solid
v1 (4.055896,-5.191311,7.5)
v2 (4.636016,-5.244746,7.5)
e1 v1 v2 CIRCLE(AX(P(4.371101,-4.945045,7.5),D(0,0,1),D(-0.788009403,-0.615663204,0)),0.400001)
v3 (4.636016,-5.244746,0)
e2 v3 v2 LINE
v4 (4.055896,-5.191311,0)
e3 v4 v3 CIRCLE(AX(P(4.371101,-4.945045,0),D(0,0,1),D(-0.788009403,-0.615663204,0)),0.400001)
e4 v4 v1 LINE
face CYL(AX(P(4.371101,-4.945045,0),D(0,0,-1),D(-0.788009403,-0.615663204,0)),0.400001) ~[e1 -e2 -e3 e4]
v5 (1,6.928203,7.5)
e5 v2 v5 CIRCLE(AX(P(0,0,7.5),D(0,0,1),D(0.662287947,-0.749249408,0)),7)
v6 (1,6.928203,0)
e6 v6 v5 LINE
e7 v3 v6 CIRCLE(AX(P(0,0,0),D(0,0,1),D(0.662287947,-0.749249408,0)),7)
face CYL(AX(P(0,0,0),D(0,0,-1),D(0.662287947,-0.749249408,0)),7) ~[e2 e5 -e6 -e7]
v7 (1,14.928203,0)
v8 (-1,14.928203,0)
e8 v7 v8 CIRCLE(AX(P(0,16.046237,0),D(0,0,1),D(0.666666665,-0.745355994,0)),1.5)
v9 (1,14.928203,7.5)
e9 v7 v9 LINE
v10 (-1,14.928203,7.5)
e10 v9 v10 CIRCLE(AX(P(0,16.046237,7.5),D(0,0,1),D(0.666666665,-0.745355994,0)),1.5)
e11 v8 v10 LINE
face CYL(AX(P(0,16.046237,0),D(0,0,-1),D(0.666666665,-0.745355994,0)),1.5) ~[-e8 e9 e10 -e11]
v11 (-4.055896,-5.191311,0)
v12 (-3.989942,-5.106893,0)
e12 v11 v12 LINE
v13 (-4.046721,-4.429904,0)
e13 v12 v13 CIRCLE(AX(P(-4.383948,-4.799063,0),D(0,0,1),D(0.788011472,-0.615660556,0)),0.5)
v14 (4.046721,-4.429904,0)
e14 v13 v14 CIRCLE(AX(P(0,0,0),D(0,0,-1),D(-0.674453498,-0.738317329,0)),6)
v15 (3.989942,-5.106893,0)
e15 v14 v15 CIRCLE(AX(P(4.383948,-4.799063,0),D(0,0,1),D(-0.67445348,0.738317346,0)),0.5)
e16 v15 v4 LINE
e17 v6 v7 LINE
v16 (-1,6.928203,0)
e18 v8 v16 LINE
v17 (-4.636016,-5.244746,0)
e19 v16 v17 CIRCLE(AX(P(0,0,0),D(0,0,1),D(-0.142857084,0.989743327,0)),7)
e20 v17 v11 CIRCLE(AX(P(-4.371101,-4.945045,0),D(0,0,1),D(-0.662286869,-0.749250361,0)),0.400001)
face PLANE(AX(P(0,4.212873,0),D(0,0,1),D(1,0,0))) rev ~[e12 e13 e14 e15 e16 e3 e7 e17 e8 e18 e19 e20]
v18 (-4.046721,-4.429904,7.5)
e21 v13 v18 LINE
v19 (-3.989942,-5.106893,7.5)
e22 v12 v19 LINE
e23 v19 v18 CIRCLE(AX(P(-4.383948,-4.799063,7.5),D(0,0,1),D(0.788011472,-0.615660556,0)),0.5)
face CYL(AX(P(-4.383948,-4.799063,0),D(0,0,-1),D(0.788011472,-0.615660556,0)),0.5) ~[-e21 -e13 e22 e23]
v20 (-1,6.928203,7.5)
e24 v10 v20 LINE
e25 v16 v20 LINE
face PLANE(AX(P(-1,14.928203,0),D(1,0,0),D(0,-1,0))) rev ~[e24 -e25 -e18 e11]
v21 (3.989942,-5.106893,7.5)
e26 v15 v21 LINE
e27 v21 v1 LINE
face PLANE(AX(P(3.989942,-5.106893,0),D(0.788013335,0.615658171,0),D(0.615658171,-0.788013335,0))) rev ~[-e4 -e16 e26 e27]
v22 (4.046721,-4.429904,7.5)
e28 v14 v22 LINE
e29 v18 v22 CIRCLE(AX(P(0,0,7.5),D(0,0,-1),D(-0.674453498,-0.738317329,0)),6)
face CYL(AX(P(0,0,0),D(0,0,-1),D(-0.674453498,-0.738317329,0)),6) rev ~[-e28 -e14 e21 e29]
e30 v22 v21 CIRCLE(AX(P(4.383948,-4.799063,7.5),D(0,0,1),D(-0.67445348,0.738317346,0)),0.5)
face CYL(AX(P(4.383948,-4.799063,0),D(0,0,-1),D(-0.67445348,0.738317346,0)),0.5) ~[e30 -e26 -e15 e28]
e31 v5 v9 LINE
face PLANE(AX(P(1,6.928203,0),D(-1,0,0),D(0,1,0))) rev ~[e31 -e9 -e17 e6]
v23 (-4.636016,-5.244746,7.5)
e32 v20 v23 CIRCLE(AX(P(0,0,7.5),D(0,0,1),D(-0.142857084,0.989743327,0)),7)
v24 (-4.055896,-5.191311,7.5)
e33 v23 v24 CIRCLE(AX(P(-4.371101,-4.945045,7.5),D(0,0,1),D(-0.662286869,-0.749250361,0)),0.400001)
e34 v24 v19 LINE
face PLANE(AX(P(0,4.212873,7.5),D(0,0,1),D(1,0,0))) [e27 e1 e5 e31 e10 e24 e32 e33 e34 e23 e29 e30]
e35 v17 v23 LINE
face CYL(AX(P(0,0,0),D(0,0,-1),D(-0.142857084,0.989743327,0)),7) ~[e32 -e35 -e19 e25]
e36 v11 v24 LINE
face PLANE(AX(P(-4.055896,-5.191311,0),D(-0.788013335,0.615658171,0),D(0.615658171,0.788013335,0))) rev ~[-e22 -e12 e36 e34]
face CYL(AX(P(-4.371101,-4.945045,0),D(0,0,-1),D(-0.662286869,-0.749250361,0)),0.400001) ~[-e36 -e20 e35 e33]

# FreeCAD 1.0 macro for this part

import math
import FreeCAD as App
import Part
import Sketcher

doc = App.newDocument("Part")
body = doc.addObject("PartDesign::Body", "Body")

# Sketch on XY plane
sketch1 = body.newObject("Sketcher::SketchObject", "Sketch")
sketch1.AttachmentSupport = (doc.getObject("XY_Plane"), [""])
sketch1.MapMode = "FlatFace"
sketch1.addGeometry([
    Part.ArcOfCircle(Part.Circle(App.Vector(4.37, -4.95, 0), App.Vector(0, 0, 1), 0.4), math.radians(-142), math.radians(-49)),  # 0
    Part.ArcOfCircle(Part.Circle(App.Vector(0, 0, 0), App.Vector(0, 0, 1), 7), math.radians(-49), math.radians(82)),  # 1
    Part.LineSegment(App.Vector(1, 6.93, 0), App.Vector(1, 14.93, 0)),  # 2
    Part.ArcOfCircle(Part.Circle(App.Vector(0, 16.05, 0), App.Vector(0, 0, 1), 1.5), math.radians(-48), math.radians(228)),  # 3
    Part.LineSegment(App.Vector(-1, 14.93, 0), App.Vector(-1, 6.93, 0)),  # 4
    Part.ArcOfCircle(Part.Circle(App.Vector(0, 0, 0), App.Vector(0, 0, 1), 7), math.radians(98), math.radians(229)),  # 5
    Part.ArcOfCircle(Part.Circle(App.Vector(-4.37, -4.95, 0), App.Vector(0, 0, 1), 0.4), math.radians(-131), math.radians(-38)),  # 6
    Part.LineSegment(App.Vector(-4.06, -5.19, 0), App.Vector(-3.99, -5.11, 0)),  # 7
    Part.ArcOfCircle(Part.Circle(App.Vector(-4.38, -4.8, 0), App.Vector(0, 0, 1), 0.5), math.radians(-38), math.radians(48)),  # 8
    Part.ArcOfCircle(Part.Circle(App.Vector(0, 0, 0), App.Vector(0, 0, 1), 6), math.radians(-48), math.radians(228)),  # 9
    Part.ArcOfCircle(Part.Circle(App.Vector(4.38, -4.8, 0), App.Vector(0, 0, 1), 0.5), math.radians(132), math.radians(218)),  # 10
    Part.LineSegment(App.Vector(3.99, -5.11, 0), App.Vector(4.06, -5.19, 0)),  # 11
], False)
sketch1.addConstraint([
    Sketcher.Constraint("Tangent", 0, 2, 1, 1),
    Sketcher.Constraint("Coincident", 1, 2, 2, 1),
    Sketcher.Constraint("Coincident", 2, 2, 3, 1),
    Sketcher.Constraint("Coincident", 3, 2, 4, 1),
    Sketcher.Constraint("Coincident", 4, 2, 5, 1),
    Sketcher.Constraint("Tangent", 5, 2, 6, 1),
    Sketcher.Constraint("Coincident", 6, 2, 7, 1),
    Sketcher.Constraint("Coincident", 7, 2, 8, 1),
    Sketcher.Constraint("Tangent", 8, 2, 9, 2),
    Sketcher.Constraint("Tangent", 9, 1, 10, 1),
    Sketcher.Constraint("Coincident", 10, 2, 11, 1),
    Sketcher.Constraint("Coincident", 11, 2, 0, 1),
    Sketcher.Constraint("Vertical", 2),
    Sketcher.Constraint("Vertical", 4),
    Sketcher.Constraint("Coincident", 1, 3, -1, 1),
    Sketcher.Constraint("Coincident", 5, 3, -1, 1),
    Sketcher.Constraint("Coincident", 9, 3, -1, 1),
    Sketcher.Constraint("Equal", 1, 5),
    Sketcher.Constraint("Equal", 0, 6),
    Sketcher.Constraint("Equal", 8, 10),
    Sketcher.Constraint("Symmetric", 2, 2, 3, 2, -2),
    Sketcher.Constraint("Symmetric", 7, 2, 10, 2, -2),
    Sketcher.Constraint("Symmetric", 6, 2, 11, 2, -2),
    Sketcher.Constraint("Radius", 1, 7.0),
    Sketcher.Constraint("Radius", 9, 6.0),
    Sketcher.Constraint("Radius", 0, 0.400001),
    Sketcher.Constraint("Radius", 3, 1.5),
    Sketcher.Constraint("Radius", 8, 0.5),
    Sketcher.Constraint("DistanceY", 2, 1, 2, 2, 8.0),
    Sketcher.Constraint("DistanceX", -1, 1, 1, 2, 1.0),
    Sketcher.Constraint("DistanceX", -1, 1, 0, 3, 4.371101),
    Sketcher.Constraint("DistanceY", 8, 3, 3, 3, 20.8453),
    Sketcher.Constraint("DistanceY", 6, 2, -1, 1, 5.191311),
    Sketcher.Constraint("DistanceX", 6, 3, 7, 2, 0.381159),
])
pad1 = body.newObject("PartDesign::Pad", "Pad")
pad1.Profile = sketch1
pad1.Length = 7.5

doc.recompute()
